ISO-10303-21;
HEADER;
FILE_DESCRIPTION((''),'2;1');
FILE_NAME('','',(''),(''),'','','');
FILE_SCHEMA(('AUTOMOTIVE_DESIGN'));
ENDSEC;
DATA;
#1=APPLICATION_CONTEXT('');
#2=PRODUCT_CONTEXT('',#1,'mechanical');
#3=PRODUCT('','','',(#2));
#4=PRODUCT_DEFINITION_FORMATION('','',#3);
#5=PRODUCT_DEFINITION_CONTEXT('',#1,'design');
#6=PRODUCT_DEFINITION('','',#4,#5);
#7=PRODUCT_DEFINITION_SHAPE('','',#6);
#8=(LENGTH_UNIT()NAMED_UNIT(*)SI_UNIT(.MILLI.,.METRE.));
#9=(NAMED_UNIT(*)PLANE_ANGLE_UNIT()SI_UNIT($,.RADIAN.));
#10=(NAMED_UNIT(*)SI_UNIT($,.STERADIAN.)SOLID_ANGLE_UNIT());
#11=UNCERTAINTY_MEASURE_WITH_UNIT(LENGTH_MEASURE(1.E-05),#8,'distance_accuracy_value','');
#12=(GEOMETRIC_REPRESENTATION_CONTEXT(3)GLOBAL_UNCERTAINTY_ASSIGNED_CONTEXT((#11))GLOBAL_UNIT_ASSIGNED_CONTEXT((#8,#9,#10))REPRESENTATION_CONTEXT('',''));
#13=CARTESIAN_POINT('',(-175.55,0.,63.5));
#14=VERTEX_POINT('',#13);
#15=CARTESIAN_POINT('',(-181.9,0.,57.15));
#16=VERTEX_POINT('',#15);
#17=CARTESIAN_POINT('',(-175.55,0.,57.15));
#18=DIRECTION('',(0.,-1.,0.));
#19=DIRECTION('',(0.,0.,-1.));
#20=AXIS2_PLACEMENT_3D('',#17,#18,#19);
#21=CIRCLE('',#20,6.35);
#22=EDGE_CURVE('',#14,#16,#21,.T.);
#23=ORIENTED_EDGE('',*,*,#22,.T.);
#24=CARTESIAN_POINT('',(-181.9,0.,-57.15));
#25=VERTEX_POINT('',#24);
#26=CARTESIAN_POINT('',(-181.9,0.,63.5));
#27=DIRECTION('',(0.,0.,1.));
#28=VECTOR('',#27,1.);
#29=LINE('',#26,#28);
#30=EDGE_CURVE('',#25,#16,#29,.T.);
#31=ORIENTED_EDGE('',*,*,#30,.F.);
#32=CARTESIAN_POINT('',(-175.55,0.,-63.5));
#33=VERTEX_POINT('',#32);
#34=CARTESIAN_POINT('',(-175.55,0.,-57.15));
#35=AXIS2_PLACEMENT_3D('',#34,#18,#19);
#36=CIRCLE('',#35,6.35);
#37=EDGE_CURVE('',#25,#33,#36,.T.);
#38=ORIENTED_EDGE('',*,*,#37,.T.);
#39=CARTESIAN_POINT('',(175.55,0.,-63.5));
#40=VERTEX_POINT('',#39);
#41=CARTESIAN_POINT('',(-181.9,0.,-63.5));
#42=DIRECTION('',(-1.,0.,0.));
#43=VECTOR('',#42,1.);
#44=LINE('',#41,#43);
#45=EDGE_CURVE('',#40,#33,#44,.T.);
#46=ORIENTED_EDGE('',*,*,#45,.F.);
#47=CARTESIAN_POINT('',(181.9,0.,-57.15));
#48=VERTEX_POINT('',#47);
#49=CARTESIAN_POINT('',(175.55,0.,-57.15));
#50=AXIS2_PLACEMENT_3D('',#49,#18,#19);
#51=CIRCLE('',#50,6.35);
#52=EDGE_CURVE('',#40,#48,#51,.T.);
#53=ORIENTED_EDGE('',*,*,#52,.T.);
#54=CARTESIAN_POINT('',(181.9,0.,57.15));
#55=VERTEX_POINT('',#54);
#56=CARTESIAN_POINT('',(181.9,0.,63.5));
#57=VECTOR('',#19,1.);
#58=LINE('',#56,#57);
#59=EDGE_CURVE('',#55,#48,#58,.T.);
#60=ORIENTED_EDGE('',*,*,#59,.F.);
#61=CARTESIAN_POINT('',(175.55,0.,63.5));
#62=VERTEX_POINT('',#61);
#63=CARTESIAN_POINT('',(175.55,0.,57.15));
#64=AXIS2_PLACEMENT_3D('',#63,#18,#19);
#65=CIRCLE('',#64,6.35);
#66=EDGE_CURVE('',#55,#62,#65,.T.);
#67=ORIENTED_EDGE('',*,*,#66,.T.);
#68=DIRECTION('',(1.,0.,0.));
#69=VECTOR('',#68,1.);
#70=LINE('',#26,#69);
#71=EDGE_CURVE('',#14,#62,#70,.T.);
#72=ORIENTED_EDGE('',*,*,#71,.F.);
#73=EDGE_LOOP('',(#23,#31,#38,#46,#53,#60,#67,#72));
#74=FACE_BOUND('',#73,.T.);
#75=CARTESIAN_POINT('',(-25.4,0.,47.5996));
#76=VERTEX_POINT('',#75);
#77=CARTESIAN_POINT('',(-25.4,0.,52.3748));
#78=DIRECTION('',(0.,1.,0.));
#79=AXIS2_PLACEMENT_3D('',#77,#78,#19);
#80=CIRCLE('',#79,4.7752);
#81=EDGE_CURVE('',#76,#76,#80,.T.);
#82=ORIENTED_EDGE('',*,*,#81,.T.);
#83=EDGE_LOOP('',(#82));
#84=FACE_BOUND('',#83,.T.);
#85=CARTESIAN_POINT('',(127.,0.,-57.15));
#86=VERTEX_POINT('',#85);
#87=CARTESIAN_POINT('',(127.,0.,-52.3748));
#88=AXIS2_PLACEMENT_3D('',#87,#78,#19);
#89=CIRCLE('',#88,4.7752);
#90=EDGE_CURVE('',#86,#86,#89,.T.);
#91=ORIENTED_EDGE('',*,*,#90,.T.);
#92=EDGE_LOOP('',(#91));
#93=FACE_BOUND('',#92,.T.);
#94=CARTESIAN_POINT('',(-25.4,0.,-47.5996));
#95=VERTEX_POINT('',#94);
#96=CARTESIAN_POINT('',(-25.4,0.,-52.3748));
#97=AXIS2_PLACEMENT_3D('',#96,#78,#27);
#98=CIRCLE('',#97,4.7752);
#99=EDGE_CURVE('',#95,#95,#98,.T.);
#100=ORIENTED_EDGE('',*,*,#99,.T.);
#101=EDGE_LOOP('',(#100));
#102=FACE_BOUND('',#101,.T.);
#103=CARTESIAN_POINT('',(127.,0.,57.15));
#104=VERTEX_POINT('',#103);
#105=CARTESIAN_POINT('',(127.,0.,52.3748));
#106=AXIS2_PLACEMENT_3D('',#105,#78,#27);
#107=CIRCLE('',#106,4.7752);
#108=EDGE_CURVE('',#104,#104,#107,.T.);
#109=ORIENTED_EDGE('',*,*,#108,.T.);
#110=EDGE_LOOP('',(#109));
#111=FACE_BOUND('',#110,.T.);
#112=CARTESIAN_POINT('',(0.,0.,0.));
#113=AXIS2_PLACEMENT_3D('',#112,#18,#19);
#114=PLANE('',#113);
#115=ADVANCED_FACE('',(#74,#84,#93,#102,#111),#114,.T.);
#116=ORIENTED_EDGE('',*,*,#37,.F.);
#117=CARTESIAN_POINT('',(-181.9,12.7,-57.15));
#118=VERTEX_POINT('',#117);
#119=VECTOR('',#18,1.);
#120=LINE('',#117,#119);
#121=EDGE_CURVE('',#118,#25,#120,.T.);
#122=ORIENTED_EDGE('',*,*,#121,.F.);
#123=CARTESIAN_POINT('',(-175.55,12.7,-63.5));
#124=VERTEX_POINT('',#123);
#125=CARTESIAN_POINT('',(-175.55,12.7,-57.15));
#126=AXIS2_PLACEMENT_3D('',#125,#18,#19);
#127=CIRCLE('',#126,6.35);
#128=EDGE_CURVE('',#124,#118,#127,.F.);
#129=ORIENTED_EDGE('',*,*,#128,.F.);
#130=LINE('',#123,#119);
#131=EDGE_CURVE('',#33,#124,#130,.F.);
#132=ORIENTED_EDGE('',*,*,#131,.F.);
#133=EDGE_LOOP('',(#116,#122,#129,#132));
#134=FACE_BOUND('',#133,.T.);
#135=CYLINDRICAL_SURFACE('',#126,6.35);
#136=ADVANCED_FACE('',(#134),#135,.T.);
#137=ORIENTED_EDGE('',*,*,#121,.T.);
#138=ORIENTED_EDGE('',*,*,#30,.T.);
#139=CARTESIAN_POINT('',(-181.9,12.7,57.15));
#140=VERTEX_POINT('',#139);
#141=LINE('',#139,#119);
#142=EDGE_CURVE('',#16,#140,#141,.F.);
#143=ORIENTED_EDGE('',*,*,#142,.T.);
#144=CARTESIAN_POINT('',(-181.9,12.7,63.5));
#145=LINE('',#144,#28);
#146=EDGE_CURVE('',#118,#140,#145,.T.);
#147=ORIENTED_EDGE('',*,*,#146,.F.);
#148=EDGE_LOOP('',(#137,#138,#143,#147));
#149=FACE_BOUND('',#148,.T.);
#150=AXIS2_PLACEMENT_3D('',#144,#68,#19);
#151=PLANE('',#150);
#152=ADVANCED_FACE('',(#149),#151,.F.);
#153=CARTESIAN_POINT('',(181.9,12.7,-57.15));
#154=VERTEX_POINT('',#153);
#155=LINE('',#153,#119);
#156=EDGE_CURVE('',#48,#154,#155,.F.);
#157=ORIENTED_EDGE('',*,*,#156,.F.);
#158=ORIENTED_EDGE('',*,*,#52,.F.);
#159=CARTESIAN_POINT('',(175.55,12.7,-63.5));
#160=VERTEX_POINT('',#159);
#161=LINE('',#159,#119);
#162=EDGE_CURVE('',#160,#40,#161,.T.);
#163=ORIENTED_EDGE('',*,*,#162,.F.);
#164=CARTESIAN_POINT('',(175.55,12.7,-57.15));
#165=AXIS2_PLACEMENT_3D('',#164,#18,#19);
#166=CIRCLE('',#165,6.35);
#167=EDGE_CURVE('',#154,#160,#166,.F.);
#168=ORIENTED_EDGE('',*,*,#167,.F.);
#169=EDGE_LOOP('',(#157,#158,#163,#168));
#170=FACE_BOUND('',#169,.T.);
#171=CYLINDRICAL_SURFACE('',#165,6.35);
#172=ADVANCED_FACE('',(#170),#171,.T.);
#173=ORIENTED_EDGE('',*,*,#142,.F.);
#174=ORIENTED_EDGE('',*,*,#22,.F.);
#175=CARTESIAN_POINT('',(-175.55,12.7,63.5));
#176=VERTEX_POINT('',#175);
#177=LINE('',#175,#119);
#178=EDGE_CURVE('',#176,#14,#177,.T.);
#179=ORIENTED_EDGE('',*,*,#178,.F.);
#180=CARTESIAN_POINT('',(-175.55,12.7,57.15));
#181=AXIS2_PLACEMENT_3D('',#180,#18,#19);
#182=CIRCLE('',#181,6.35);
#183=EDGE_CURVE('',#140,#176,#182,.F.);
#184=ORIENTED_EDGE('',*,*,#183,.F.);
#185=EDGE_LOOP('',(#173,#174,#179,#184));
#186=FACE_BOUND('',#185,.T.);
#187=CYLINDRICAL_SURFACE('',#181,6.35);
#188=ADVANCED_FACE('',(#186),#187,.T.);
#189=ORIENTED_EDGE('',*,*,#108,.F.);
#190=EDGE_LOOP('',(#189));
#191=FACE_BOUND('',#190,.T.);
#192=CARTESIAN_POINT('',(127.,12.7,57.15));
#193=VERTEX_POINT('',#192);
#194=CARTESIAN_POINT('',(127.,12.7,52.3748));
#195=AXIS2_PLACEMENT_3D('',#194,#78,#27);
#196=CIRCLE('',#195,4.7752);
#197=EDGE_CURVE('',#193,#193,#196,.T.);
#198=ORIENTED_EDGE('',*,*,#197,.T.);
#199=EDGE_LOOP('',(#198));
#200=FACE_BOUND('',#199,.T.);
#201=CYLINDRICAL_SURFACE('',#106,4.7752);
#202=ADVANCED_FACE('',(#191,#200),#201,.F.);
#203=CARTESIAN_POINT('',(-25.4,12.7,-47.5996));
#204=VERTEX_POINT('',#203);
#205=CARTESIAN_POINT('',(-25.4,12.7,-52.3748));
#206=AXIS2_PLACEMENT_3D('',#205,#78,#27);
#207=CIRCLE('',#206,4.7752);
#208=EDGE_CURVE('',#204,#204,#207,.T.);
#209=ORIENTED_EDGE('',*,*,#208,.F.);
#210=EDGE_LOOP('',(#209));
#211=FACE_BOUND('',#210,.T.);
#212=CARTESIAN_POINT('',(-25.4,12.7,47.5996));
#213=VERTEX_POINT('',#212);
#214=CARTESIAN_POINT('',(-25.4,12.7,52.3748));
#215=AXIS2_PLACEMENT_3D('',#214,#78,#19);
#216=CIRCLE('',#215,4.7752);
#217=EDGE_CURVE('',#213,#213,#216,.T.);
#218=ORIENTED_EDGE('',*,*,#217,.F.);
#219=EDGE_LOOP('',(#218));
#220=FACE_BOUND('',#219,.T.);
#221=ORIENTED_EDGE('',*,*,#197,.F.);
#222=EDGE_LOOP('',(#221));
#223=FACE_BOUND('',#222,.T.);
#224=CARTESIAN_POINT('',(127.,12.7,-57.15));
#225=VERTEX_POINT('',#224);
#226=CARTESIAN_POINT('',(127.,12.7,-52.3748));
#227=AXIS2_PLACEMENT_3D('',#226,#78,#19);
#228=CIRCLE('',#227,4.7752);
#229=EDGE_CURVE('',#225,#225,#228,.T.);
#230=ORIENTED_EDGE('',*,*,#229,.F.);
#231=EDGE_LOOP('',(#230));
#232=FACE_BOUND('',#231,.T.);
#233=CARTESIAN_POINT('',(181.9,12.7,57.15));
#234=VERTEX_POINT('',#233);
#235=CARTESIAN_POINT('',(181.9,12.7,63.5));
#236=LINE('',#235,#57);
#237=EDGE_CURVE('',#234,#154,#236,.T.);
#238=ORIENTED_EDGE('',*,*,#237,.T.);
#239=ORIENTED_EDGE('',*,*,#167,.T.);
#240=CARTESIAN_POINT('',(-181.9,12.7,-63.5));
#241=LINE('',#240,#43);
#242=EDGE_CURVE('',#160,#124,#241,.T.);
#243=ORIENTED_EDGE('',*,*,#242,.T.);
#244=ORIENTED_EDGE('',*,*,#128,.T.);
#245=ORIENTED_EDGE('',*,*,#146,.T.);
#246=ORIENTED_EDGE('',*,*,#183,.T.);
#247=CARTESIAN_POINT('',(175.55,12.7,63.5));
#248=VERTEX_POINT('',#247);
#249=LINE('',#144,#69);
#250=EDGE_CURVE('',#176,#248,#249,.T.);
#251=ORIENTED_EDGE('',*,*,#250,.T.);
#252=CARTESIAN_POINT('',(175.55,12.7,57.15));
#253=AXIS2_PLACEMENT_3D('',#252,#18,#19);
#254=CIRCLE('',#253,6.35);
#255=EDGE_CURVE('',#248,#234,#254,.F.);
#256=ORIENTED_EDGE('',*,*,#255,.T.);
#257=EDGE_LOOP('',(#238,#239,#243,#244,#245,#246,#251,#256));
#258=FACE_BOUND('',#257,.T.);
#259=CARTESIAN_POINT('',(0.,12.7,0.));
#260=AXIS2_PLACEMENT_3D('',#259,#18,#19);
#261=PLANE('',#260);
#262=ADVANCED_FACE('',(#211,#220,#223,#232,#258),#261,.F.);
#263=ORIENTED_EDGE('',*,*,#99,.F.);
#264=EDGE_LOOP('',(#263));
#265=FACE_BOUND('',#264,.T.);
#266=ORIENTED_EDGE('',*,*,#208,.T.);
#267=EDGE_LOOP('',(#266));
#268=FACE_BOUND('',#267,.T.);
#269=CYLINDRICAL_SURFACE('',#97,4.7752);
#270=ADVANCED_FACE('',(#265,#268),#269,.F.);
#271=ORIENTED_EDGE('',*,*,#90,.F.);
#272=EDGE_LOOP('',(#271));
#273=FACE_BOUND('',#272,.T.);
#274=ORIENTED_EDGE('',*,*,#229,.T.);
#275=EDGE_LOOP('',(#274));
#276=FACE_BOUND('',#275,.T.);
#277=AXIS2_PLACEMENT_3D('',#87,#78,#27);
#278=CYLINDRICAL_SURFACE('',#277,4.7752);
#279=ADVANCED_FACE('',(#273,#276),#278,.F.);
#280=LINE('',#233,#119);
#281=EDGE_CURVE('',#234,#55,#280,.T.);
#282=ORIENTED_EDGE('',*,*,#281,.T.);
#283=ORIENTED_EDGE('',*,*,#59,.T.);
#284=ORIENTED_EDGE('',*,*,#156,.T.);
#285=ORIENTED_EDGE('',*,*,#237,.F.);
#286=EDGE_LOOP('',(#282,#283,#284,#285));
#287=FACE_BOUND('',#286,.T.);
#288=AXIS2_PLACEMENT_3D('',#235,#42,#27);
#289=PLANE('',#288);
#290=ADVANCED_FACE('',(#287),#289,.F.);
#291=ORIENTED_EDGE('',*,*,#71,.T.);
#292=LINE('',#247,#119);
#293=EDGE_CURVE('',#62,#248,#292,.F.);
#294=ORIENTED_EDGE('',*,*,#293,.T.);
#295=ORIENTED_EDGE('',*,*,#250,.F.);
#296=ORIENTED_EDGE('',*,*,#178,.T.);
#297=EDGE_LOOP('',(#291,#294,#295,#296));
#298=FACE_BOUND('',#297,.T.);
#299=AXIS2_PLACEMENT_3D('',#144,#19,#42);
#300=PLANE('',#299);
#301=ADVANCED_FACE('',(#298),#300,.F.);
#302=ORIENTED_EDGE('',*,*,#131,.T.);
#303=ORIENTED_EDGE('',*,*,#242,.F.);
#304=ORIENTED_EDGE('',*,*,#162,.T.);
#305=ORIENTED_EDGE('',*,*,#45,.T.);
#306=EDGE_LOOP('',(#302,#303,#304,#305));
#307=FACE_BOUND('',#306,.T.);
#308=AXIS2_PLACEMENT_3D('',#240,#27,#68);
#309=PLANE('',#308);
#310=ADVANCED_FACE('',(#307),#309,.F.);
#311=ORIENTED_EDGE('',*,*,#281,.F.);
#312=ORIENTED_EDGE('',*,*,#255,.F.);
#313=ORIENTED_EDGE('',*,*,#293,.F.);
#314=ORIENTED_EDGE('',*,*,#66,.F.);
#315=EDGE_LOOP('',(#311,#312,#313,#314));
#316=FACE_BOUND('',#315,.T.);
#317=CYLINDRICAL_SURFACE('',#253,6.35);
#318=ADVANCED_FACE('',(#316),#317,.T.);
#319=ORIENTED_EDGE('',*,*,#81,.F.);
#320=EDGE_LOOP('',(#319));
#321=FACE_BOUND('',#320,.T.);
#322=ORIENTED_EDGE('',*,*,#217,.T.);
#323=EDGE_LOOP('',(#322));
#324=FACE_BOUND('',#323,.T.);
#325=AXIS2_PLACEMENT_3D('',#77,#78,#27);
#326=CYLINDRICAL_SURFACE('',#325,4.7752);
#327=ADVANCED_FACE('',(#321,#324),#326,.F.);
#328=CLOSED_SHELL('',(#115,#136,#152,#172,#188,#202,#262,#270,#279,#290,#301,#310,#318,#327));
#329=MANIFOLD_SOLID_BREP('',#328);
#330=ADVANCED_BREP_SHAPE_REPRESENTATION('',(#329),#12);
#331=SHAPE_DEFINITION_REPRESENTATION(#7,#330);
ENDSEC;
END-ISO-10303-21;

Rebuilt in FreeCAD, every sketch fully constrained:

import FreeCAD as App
import Part
import Sketcher
from FreeCAD import Vector
Q = App.Units.Quantity


def edges_at(feature, points):
    """Names of the edges that pass closest to the given points."""
    edges = feature.Shape.Edges
    near = lambda p: min(range(len(edges)), key=lambda i: edges[i].distToShape(Part.Vertex(*p))[0])
    return sorted({f"Edge{near(p) + 1}" for p in points})


def add_polygon(sketch, points):
    """Adds a closed chain of lines whose ends are joined by coincident constraints."""
    first, n = sketch.GeometryCount, len(points)
    for a, b in zip(points, points[1:] + points[:1]):
        sketch.addGeometry(Part.LineSegment(App.Vector(*a, 0), App.Vector(*b, 0)), False)
    for i in range(n):
        sketch.addConstraint(Sketcher.Constraint("Coincident", first + i, 2, first + (i + 1) % n, 1))

doc = App.newDocument("Part")
body = doc.addObject("PartDesign::Body", "Body")

# Sketch on XZ plane
sketch1 = body.newObject("Sketcher::SketchObject", "Sketch")
sketch1.AttachmentSupport = (doc.getObject("XZ_Plane"), [""])
sketch1.MapMode = "FlatFace"
add_polygon(sketch1, [(-182, -64), (-182, 64), (182, 64), (182, -64)])  # lines 0-3
sketch1.addConstraint(Sketcher.Constraint("Vertical", 0))
sketch1.addConstraint(Sketcher.Constraint("Horizontal", 1))
sketch1.addConstraint(Sketcher.Constraint("Vertical", 2))
sketch1.addConstraint(Sketcher.Constraint("Horizontal", 3))
sketch1.addConstraint(Sketcher.Constraint("Symmetric", 0, 2, 2, 2, -1, 1))
sketch1.addConstraint(Sketcher.Constraint("DistanceY", 0, 1, 0, 2, Q("5 in")))
sketch1.addConstraint(Sketcher.Constraint("DistanceX", 1, 1, 1, 2, Q("363.8 mm")))
pad1 = body.newObject("PartDesign::Pad", "Pad")
pad1.Profile = sketch1
pad1.Length = Q("0.5 in")
pad1.Reversed = True
doc.recompute()

fillet = body.newObject("PartDesign::Fillet", "Fillet")
fillet.Base = (pad1, edges_at(pad1, [
    (181.9, 6.35, 63.5),
    (-181.9, 6.35, 63.5),
    (-181.9, 6.35, -63.5),
    (181.9, 6.35, -63.5),
]))
fillet.Radius = Q("0.25 in")

# Sketch on XZ plane
sketch2 = body.newObject("Sketcher::SketchObject", "Sketch001")
sketch2.AttachmentSupport = (doc.getObject("XZ_Plane"), [""])
sketch2.MapMode = "FlatFace"
sketch2.AttachmentOffset = App.Placement(Vector(0, 0, -0.5 * 25.4), App.Rotation())
sketch2.addGeometry(Part.Circle(Vector(-25.4, -52.4, 0), Vector(0, 0, 1), 4.8), False)
sketch2.addGeometry(Part.Circle(Vector(-25.4, 52.4, 0), Vector(0, 0, 1), 4.8), False)
sketch2.addGeometry(Part.Circle(Vector(127, 52.4, 0), Vector(0, 0, 1), 4.8), False)
sketch2.addGeometry(Part.Circle(Vector(127, -52.4, 0), Vector(0, 0, 1), 4.8), False)
sketch2.addConstraint(Sketcher.Constraint("Equal", 0, 1))
sketch2.addConstraint(Sketcher.Constraint("Equal", 1, 2))
sketch2.addConstraint(Sketcher.Constraint("Equal", 2, 3))
sketch2.addConstraint(Sketcher.Constraint("Symmetric", 0, 3, 1, 3, -1))
sketch2.addConstraint(Sketcher.Constraint("Symmetric", 2, 3, 3, 3, -1))
sketch2.addConstraint(Sketcher.Constraint("Horizontal", 1, 3, 2, 3))
sketch2.addConstraint(Sketcher.Constraint("Diameter", 0, Q("0.376 in")))
sketch2.addConstraint(Sketcher.Constraint("DistanceX", 0, 3, -1, 1, Q("1 in")))
sketch2.addConstraint(Sketcher.Constraint("DistanceX", -1, 1, 2, 3, Q("5 in")))
sketch2.addConstraint(Sketcher.Constraint("DistanceY", 0, 3, -1, 1, Q("2.062 in")))
pocket1 = body.newObject("PartDesign::Pocket", "Pocket")
pocket1.Profile = sketch2
pocket1.Type = "ThroughAll"
pocket1.Reversed = True

doc.recompute()
